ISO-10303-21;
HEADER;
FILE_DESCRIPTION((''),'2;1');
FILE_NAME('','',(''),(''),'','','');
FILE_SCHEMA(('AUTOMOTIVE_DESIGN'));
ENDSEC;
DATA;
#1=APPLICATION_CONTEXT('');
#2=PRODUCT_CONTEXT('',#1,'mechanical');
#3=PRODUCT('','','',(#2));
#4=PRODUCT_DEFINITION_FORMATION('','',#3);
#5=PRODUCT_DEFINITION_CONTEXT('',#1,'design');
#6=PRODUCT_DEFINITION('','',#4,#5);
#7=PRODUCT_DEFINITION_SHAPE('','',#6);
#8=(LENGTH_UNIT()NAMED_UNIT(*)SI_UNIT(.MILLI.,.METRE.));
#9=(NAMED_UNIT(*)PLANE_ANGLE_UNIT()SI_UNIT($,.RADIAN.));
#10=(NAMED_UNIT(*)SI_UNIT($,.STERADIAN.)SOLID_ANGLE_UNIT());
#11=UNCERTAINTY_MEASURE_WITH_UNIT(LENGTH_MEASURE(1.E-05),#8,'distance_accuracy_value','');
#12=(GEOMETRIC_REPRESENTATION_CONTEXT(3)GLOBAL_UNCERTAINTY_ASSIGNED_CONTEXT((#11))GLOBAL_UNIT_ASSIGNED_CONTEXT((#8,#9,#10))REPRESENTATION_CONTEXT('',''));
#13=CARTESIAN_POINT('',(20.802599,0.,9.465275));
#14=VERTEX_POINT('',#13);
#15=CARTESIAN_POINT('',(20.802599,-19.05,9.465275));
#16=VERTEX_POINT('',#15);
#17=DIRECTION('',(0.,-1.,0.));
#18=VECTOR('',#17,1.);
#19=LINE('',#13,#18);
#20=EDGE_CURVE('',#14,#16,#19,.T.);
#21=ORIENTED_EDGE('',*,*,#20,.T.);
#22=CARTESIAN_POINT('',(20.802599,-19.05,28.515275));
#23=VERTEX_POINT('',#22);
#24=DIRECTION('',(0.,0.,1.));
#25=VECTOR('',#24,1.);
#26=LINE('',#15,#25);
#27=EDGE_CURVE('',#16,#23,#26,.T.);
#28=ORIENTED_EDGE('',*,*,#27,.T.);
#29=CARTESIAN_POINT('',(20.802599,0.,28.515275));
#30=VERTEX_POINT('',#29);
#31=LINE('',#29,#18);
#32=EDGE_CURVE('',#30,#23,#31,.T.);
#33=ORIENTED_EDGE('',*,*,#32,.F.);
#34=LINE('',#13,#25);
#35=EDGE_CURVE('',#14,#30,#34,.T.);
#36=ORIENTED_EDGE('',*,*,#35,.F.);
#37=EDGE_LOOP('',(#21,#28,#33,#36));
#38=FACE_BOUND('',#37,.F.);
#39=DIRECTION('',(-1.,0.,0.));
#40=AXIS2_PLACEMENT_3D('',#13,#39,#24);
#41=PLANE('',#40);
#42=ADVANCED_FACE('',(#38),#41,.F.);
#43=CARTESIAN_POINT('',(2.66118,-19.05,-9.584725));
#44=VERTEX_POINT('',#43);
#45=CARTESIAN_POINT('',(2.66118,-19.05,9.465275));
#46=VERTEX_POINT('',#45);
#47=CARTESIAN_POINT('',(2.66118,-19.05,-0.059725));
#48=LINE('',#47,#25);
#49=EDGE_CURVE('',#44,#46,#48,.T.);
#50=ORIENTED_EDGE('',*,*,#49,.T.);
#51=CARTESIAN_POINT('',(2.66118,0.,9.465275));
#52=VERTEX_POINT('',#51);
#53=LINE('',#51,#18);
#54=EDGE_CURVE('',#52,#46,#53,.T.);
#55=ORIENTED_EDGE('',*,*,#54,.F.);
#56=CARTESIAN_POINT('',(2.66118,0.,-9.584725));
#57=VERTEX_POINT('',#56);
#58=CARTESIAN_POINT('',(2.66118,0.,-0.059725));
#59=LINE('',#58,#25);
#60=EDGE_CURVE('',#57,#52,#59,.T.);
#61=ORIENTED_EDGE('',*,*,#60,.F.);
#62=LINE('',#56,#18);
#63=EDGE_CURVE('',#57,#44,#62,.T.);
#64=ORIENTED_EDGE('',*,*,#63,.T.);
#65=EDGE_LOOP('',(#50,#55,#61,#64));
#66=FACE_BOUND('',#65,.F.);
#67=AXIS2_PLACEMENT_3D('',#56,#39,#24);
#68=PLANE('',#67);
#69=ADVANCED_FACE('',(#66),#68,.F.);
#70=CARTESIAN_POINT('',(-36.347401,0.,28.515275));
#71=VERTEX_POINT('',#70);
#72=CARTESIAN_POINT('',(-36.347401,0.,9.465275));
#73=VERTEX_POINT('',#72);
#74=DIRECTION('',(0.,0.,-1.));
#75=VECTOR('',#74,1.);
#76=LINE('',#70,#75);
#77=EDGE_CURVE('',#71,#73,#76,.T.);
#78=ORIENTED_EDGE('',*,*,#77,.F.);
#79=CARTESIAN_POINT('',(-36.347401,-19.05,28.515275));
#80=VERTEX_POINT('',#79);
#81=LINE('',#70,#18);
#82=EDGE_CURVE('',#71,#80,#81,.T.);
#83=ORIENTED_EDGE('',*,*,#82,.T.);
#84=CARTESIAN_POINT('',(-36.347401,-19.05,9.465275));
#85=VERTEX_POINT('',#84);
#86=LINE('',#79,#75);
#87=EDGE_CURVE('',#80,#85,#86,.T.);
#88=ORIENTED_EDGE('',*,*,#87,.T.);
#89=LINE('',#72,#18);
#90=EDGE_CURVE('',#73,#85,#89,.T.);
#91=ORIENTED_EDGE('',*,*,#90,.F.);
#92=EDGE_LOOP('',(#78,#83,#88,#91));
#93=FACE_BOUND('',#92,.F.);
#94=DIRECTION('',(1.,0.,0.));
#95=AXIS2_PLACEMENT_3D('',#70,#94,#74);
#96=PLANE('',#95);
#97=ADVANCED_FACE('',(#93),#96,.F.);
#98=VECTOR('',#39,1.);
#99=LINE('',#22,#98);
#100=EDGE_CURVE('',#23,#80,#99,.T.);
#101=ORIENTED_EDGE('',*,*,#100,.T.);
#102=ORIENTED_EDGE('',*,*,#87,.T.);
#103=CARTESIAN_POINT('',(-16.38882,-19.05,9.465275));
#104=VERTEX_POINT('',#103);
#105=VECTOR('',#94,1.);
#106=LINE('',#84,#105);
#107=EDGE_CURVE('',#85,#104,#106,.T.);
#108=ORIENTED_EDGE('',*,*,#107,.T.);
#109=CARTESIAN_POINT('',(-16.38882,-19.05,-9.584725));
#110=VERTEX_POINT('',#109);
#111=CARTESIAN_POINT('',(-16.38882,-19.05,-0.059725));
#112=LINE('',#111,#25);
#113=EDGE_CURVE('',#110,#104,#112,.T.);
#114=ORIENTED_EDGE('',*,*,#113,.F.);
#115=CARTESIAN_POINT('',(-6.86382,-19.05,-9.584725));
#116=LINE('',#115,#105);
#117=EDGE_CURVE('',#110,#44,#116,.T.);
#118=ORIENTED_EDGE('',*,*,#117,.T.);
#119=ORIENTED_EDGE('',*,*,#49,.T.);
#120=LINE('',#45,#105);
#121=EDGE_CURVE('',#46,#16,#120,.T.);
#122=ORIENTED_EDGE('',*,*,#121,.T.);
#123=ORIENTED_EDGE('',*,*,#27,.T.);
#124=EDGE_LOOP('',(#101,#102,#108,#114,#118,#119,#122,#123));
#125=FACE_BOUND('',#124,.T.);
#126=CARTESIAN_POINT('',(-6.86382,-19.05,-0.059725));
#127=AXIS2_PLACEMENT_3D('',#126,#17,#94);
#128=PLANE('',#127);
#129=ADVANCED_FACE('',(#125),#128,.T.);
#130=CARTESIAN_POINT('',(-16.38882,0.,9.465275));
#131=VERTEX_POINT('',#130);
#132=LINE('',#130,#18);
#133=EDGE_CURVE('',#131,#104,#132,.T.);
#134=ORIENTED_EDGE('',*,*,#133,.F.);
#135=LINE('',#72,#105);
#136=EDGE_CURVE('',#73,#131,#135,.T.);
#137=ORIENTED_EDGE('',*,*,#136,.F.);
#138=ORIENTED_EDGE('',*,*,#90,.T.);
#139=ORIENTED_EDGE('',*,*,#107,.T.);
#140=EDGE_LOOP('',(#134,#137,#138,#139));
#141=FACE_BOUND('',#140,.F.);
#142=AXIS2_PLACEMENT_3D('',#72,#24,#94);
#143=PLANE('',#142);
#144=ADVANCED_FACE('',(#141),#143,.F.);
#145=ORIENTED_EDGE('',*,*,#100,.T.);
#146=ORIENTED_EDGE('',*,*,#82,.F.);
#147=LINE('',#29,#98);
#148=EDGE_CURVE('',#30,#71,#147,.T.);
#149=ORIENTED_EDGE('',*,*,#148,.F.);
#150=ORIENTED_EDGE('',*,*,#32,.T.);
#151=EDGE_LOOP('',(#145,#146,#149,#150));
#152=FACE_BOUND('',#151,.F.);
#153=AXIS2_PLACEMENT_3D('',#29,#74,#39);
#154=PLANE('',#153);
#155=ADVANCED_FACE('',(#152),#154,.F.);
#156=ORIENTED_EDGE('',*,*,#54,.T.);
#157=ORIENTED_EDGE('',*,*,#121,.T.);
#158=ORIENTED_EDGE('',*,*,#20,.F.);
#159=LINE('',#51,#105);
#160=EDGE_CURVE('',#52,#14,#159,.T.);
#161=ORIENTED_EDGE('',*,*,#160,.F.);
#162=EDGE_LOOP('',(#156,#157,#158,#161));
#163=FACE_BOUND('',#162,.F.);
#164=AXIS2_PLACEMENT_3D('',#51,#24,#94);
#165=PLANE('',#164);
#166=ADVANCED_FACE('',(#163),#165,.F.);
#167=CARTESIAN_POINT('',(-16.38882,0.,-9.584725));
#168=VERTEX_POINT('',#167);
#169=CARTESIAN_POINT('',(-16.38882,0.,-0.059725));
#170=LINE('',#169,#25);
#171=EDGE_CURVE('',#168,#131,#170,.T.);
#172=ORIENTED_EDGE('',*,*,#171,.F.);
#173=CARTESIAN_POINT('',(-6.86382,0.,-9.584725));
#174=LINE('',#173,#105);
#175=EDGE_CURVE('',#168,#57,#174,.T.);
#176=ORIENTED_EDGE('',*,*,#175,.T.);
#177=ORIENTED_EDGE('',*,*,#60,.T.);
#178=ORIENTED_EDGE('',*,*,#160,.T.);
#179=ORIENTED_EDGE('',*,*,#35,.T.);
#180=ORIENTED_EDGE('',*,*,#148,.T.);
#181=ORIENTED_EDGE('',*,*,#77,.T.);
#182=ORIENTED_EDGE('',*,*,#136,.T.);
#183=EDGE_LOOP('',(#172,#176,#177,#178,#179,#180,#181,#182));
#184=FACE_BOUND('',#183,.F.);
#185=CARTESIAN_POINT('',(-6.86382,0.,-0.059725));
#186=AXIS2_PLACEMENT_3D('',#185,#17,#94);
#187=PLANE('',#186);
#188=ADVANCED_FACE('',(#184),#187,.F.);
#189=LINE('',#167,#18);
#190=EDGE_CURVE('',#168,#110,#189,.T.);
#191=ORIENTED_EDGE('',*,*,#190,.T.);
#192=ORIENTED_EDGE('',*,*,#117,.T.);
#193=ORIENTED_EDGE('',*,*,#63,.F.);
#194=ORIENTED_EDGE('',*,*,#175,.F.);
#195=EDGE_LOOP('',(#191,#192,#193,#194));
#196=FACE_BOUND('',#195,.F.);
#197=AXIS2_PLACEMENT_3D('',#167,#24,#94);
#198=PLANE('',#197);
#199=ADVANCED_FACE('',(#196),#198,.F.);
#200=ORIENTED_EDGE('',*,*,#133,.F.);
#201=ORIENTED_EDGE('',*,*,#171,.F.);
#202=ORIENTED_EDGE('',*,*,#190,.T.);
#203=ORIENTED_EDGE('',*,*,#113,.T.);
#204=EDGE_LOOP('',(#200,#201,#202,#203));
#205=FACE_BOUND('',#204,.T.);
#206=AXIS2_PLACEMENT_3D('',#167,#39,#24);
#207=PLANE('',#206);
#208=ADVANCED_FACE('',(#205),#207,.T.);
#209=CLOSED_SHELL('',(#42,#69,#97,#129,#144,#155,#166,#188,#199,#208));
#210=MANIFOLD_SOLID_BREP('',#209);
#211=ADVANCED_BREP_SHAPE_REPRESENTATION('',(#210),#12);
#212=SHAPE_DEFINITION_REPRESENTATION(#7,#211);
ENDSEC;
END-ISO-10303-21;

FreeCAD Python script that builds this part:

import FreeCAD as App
import Part
import Sketcher
Q = App.Units.Quantity

doc = App.newDocument("Part")
body = doc.addObject("PartDesign::Body", "Body")

sketch1 = body.newObject("Sketcher::SketchObject", "Sketch")
sketch1.AttachmentSupport = (doc.getObject("XZ_Plane"), [""])
sketch1.MapMode = "FlatFace"
sketch1.addGeometry(Part.LineSegment(App.Vector(-16, 9, 0), App.Vector(-16, -10, 0)), False)
sketch1.addGeometry(Part.LineSegment(App.Vector(-16, -10, 0), App.Vector(3, -10, 0)), False)
sketch1.addGeometry(Part.LineSegment(App.Vector(3, -10, 0), App.Vector(3, 9, 0)), False)
sketch1.addGeometry(Part.LineSegment(App.Vector(3, 9, 0), App.Vector(21, 9, 0)), False)
sketch1.addGeometry(Part.LineSegment(App.Vector(21, 9, 0), App.Vector(21, 29, 0)), False)
sketch1.addGeometry(Part.LineSegment(App.Vector(21, 29, 0), App.Vector(-36, 29, 0)), False)
sketch1.addGeometry(Part.LineSegment(App.Vector(-36, 29, 0), App.Vector(-36, 9, 0)), False)
sketch1.addGeometry(Part.LineSegment(App.Vector(-36, 9, 0), App.Vector(-16, 9, 0)), False)
sketch1.addConstraint(Sketcher.Constraint("Coincident", 0, 2, 1, 1))
sketch1.addConstraint(Sketcher.Constraint("Coincident", 1, 2, 2, 1))
sketch1.addConstraint(Sketcher.Constraint("Coincident", 2, 2, 3, 1))
sketch1.addConstraint(Sketcher.Constraint("Coincident", 3, 2, 4, 1))
sketch1.addConstraint(Sketcher.Constraint("Coincident", 4, 2, 5, 1))
sketch1.addConstraint(Sketcher.Constraint("Coincident", 5, 2, 6, 1))
sketch1.addConstraint(Sketcher.Constraint("Coincident", 6, 2, 7, 1))
sketch1.addConstraint(Sketcher.Constraint("Coincident", 7, 2, 0, 1))
sketch1.addConstraint(Sketcher.Constraint("Vertical", 0))
sketch1.addConstraint(Sketcher.Constraint("Horizontal", 1))
sketch1.addConstraint(Sketcher.Constraint("Vertical", 2))
sketch1.addConstraint(Sketcher.Constraint("Horizontal", 3))
sketch1.addConstraint(Sketcher.Constraint("Vertical", 4))
sketch1.addConstraint(Sketcher.Constraint("Horizontal", 5))
sketch1.addConstraint(Sketcher.Constraint("Vertical", 6))
sketch1.addConstraint(Sketcher.Constraint("Horizontal", 7))
sketch1.addConstraint(Sketcher.Constraint("Horizontal", 3, 2, 6, 2))
sketch1.addConstraint(Sketcher.Constraint("Equal", 1, 0))
sketch1.addConstraint(Sketcher.Constraint("Equal", 2, 4))
sketch1.addConstraint(Sketcher.Constraint("DistanceX", 1, 1, 1, 2, Q("0.75 in")))
sketch1.addConstraint(Sketcher.Constraint("DistanceX", 5, 2, 5, 1, Q("2.25 in")))
sketch1.addConstraint(Sketcher.Constraint("DistanceX", -1, 1, 3, 2, Q("0.819 in")))
sketch1.addConstraint(Sketcher.Constraint("DistanceX", 3, 1, 3, 2, Q("18.141419 mm")))
sketch1.addConstraint(Sketcher.Constraint("DistanceY", 0, 2, -1, 1, Q("9.584725 mm")))
pad1 = body.newObject("PartDesign::Pad", "Pad")
pad1.Profile = sketch1
pad1.Length = Q("0.75 in")

doc.recompute()
